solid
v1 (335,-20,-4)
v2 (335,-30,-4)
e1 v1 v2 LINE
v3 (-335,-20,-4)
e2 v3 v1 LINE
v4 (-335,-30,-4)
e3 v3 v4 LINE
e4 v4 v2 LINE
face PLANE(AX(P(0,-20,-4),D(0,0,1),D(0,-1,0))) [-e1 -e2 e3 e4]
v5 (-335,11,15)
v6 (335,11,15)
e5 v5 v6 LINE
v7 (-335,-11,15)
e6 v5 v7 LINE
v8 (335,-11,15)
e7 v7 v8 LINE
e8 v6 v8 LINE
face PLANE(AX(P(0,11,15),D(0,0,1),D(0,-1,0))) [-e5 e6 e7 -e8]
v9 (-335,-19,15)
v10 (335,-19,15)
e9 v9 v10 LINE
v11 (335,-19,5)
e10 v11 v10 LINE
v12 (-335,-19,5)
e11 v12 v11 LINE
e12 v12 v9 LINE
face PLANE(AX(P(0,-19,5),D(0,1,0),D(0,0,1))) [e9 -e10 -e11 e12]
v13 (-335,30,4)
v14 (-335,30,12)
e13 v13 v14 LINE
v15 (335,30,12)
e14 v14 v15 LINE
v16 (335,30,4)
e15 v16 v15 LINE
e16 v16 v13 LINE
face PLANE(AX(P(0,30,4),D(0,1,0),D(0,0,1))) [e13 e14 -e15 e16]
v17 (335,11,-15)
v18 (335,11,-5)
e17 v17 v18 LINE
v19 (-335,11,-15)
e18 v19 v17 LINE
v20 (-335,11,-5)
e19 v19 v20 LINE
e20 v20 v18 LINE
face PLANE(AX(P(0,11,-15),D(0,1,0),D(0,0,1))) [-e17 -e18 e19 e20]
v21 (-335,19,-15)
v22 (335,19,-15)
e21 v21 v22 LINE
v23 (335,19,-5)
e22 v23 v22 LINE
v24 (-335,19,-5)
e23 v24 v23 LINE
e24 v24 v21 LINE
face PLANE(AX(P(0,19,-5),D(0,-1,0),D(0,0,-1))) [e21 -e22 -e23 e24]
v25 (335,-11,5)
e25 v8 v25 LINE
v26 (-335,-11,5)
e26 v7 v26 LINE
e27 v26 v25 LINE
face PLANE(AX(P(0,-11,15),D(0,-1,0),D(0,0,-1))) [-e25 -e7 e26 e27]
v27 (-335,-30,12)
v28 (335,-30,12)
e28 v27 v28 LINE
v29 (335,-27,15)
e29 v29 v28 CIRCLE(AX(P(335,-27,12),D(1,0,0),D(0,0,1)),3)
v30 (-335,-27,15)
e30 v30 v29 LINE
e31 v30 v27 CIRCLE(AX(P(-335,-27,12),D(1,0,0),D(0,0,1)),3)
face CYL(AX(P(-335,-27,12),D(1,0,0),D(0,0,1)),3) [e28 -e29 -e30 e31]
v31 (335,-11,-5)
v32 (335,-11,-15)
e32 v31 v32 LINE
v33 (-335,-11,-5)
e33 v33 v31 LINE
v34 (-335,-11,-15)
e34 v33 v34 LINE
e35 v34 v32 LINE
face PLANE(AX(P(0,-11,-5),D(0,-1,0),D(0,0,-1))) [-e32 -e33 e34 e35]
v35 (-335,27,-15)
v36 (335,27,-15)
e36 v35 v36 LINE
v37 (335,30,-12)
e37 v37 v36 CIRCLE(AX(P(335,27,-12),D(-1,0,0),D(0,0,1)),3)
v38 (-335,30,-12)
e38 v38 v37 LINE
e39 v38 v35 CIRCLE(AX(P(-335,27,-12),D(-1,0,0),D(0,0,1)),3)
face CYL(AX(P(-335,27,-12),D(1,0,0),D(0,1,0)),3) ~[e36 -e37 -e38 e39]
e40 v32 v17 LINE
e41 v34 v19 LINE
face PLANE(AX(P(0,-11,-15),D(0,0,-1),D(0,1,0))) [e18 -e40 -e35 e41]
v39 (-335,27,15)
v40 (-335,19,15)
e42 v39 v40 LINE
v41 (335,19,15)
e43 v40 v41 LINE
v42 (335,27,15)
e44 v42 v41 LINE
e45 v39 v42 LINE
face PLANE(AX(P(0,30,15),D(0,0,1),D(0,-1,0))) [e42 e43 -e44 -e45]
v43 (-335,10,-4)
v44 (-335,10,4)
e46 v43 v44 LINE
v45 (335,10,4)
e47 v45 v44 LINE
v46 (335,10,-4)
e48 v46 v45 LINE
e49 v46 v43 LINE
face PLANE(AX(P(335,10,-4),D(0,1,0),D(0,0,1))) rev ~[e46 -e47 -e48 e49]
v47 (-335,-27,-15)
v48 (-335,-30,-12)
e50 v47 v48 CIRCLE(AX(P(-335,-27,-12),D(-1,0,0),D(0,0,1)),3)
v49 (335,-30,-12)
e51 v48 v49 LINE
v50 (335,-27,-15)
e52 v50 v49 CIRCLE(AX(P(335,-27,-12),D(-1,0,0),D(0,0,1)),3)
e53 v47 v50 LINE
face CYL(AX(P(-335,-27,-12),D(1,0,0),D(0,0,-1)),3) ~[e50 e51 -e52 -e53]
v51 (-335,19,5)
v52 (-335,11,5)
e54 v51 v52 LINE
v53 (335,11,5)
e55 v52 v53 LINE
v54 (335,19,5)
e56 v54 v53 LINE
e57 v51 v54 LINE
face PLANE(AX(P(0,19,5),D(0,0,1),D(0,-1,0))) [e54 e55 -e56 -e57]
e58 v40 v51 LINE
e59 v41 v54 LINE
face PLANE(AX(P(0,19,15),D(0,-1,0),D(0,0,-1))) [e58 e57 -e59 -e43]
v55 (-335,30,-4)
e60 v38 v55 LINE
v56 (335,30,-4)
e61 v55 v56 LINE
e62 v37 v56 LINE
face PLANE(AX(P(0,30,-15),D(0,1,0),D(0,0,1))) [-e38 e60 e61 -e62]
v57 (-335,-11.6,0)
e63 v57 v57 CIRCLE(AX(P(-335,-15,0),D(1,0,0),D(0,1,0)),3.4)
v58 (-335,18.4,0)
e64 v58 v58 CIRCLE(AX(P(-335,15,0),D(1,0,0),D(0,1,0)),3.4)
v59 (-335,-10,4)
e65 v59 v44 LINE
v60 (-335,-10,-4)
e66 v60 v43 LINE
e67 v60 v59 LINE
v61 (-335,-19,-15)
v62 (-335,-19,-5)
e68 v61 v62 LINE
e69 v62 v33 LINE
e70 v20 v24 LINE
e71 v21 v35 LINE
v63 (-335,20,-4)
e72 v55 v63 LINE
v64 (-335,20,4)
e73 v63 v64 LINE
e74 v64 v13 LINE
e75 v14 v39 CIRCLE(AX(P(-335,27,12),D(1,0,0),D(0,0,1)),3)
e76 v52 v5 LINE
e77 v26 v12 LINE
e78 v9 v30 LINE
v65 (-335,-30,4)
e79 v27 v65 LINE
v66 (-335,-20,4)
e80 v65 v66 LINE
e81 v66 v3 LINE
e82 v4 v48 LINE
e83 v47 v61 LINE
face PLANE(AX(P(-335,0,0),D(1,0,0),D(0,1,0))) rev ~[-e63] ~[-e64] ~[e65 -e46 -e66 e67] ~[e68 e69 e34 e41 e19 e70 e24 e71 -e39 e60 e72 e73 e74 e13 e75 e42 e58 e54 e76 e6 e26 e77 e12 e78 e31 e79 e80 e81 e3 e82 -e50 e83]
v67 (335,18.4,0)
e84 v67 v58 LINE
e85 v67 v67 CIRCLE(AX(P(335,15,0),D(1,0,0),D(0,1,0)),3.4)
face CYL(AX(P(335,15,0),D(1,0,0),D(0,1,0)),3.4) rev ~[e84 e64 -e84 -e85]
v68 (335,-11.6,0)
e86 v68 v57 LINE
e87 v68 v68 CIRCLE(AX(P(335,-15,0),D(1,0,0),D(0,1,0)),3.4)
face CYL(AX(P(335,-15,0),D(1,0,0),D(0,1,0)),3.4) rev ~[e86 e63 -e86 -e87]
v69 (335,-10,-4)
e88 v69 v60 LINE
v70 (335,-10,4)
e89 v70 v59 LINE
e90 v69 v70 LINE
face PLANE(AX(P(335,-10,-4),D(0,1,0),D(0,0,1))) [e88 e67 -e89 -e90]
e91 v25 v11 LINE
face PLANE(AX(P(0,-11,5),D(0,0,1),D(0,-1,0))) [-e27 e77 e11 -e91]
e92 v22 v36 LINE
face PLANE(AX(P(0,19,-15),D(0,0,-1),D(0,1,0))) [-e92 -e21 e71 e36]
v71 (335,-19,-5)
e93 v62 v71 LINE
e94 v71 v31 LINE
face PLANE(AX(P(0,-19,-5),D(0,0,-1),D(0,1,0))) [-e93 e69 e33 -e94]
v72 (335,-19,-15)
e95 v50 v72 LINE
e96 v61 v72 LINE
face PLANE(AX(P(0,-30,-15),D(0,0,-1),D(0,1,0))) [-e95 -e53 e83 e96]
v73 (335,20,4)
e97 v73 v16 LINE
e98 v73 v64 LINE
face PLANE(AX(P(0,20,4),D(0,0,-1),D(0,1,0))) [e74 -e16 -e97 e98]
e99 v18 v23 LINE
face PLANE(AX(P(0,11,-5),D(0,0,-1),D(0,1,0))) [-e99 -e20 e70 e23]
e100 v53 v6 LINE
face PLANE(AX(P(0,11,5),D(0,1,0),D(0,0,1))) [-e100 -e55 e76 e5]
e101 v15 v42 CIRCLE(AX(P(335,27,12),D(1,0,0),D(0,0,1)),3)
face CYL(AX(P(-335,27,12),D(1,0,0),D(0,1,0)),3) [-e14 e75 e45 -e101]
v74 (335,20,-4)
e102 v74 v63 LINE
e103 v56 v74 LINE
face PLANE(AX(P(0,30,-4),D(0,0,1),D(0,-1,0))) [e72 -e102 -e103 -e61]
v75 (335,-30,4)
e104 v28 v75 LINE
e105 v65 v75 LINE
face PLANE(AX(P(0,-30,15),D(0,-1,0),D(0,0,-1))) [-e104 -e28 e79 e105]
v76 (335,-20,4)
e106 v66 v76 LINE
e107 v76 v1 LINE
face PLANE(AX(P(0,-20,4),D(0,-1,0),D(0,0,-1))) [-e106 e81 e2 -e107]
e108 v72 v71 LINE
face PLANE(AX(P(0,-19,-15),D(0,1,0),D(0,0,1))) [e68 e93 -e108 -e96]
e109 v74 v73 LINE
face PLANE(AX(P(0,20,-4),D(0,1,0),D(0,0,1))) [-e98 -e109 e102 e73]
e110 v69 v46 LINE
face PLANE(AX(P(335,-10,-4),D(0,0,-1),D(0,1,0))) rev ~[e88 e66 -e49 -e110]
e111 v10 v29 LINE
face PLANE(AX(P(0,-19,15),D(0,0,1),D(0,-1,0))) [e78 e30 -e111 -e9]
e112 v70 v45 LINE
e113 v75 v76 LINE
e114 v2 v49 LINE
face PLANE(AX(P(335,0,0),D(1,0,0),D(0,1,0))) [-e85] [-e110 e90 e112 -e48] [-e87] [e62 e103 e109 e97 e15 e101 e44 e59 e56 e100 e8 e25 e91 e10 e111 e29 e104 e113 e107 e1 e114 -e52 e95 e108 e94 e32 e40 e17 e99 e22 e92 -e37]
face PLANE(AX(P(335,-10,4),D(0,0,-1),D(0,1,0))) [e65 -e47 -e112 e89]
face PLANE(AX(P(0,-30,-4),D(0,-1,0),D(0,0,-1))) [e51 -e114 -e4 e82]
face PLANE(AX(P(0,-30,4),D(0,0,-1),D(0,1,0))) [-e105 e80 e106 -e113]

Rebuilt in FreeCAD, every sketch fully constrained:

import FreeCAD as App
import Part
import Sketcher
from FreeCAD import Vector
Q = App.Units.Quantity


def edges_at(feature, points):
    """Names of the edges that pass closest to the given points."""
    edges = feature.Shape.Edges
    near = lambda p: min(range(len(edges)), key=lambda i: edges[i].distToShape(Part.Vertex(*p))[0])
    return sorted({f"Edge{near(p) + 1}" for p in points})

doc = App.newDocument("Part")
params = doc.addObject("Spreadsheet::Sheet", "Params")
for row, (alias, value) in enumerate([
    ("sketch1_width", "11 mm"),
    ("sketch1_width2", "8 mm"),
    ("sketch1_width3", "22 mm"),
    ("sketch1_width4", "10 mm"),
    ("pad1_length", "670 mm"),
    ("sketch2_diameter", "6.8 mm"),
    ("sketch2_width", "20 mm"),
    ("sketch2_height", "8 mm"),
    ("pocket1_length", "670 mm"),
    ("fillet_radius", "3 mm"),
], start=1):
    params.set(f"A{row}", alias)
    params.set(f"B{row}", "=" + value)
    params.setAlias(f"B{row}", alias)

body = doc.addObject("PartDesign::Body", "Body")

# Sketch on YZ plane
sketch1 = body.newObject("Sketcher::SketchObject", "Sketch")
sketch1.AttachmentSupport = (doc.getObject("YZ_Plane"), [""])
sketch1.MapMode = "FlatFace"
sketch1.addGeometry([
    Part.LineSegment(Vector(30, 4, 0), Vector(30, 15, 0)),  # 0
    Part.LineSegment(Vector(30, 15, 0), Vector(19, 15, 0)),  # 1
    Part.LineSegment(Vector(19, 15, 0), Vector(19, 5, 0)),  # 2
    Part.LineSegment(Vector(19, 5, 0), Vector(11, 5, 0)),  # 3
    Part.LineSegment(Vector(11, 5, 0), Vector(11, 15, 0)),  # 4
    Part.LineSegment(Vector(11, 15, 0), Vector(-11, 15, 0)),  # 5
    Part.LineSegment(Vector(-11, 15, 0), Vector(-11, 5, 0)),  # 6
    Part.LineSegment(Vector(-11, 5, 0), Vector(-19, 5, 0)),  # 7
    Part.LineSegment(Vector(-19, 5, 0), Vector(-19, 15, 0)),  # 8
    Part.LineSegment(Vector(-19, 15, 0), Vector(-30, 15, 0)),  # 9
    Part.LineSegment(Vector(-30, 15, 0), Vector(-30, 4, 0)),  # 10
    Part.LineSegment(Vector(-30, 4, 0), Vector(-20, 4, 0)),  # 11
    Part.LineSegment(Vector(-20, 4, 0), Vector(-20, -4, 0)),  # 12
    Part.LineSegment(Vector(-20, -4, 0), Vector(-30, -4, 0)),  # 13
    Part.LineSegment(Vector(-30, -4, 0), Vector(-30, -15, 0)),  # 14
    Part.LineSegment(Vector(-30, -15, 0), Vector(-19, -15, 0)),  # 15
    Part.LineSegment(Vector(-19, -15, 0), Vector(-19, -5, 0)),  # 16
    Part.LineSegment(Vector(-19, -5, 0), Vector(-11, -5, 0)),  # 17
    Part.LineSegment(Vector(-11, -5, 0), Vector(-11, -15, 0)),  # 18
    Part.LineSegment(Vector(-11, -15, 0), Vector(11, -15, 0)),  # 19
    Part.LineSegment(Vector(11, -15, 0), Vector(11, -5, 0)),  # 20
    Part.LineSegment(Vector(11, -5, 0), Vector(19, -5, 0)),  # 21
    Part.LineSegment(Vector(19, -5, 0), Vector(19, -15, 0)),  # 22
    Part.LineSegment(Vector(19, -15, 0), Vector(30, -15, 0)),  # 23
    Part.LineSegment(Vector(30, -15, 0), Vector(30, -4, 0)),  # 24
    Part.LineSegment(Vector(30, -4, 0), Vector(20, -4, 0)),  # 25
    Part.LineSegment(Vector(20, -4, 0), Vector(20, 4, 0)),  # 26
    Part.LineSegment(Vector(20, 4, 0), Vector(30, 4, 0)),  # 27
], False)
sketch1.addConstraint([
    Sketcher.Constraint("Coincident", 0, 2, 1, 1),
    Sketcher.Constraint("Coincident", 1, 2, 2, 1),
    Sketcher.Constraint("Coincident", 2, 2, 3, 1),
    Sketcher.Constraint("Coincident", 3, 2, 4, 1),
    Sketcher.Constraint("Coincident", 4, 2, 5, 1),
    Sketcher.Constraint("Coincident", 5, 2, 6, 1),
    Sketcher.Constraint("Coincident", 6, 2, 7, 1),
    Sketcher.Constraint("Coincident", 7, 2, 8, 1),
    Sketcher.Constraint("Coincident", 8, 2, 9, 1),
    Sketcher.Constraint("Coincident", 9, 2, 10, 1),
    Sketcher.Constraint("Coincident", 10, 2, 11, 1),
    Sketcher.Constraint("Coincident", 11, 2, 12, 1),
    Sketcher.Constraint("Coincident", 12, 2, 13, 1),
    Sketcher.Constraint("Coincident", 13, 2, 14, 1),
    Sketcher.Constraint("Coincident", 14, 2, 15, 1),
    Sketcher.Constraint("Coincident", 15, 2, 16, 1),
    Sketcher.Constraint("Coincident", 16, 2, 17, 1),
    Sketcher.Constraint("Coincident", 17, 2, 18, 1),
    Sketcher.Constraint("Coincident", 18, 2, 19, 1),
    Sketcher.Constraint("Coincident", 19, 2, 20, 1),
    Sketcher.Constraint("Coincident", 20, 2, 21, 1),
    Sketcher.Constraint("Coincident", 21, 2, 22, 1),
    Sketcher.Constraint("Coincident", 22, 2, 23, 1),
    Sketcher.Constraint("Coincident", 23, 2, 24, 1),
    Sketcher.Constraint("Coincident", 24, 2, 25, 1),
    Sketcher.Constraint("Coincident", 25, 2, 26, 1),
    Sketcher.Constraint("Coincident", 26, 2, 27, 1),
    Sketcher.Constraint("Coincident", 27, 2, 0, 1),
    Sketcher.Constraint("Vertical", 0),
    Sketcher.Constraint("Horizontal", 1),
    Sketcher.Constraint("Vertical", 2),
    Sketcher.Constraint("Horizontal", 3),
    Sketcher.Constraint("Vertical", 4),
    Sketcher.Constraint("Horizontal", 5),
    Sketcher.Constraint("Vertical", 6),
    Sketcher.Constraint("Horizontal", 7),
    Sketcher.Constraint("Vertical", 8),
    Sketcher.Constraint("Horizontal", 9),
    Sketcher.Constraint("Vertical", 10),
    Sketcher.Constraint("Horizontal", 11),
    Sketcher.Constraint("Vertical", 12),
    Sketcher.Constraint("Horizontal", 13),
    Sketcher.Constraint("Vertical", 14),
    Sketcher.Constraint("Horizontal", 15),
    Sketcher.Constraint("Vertical", 16),
    Sketcher.Constraint("Horizontal", 17),
    Sketcher.Constraint("Vertical", 18),
    Sketcher.Constraint("Horizontal", 19),
    Sketcher.Constraint("Vertical", 20),
    Sketcher.Constraint("Horizontal", 21),
    Sketcher.Constraint("Vertical", 22),
    Sketcher.Constraint("Horizontal", 23),
    Sketcher.Constraint("Vertical", 24),
    Sketcher.Constraint("Horizontal", 25),
    Sketcher.Constraint("Vertical", 26),
    Sketcher.Constraint("Horizontal", 27),
    Sketcher.Constraint("Symmetric", 0, 2, 14, 2, -1, 1),
    Sketcher.Constraint("Symmetric", 2, 2, 16, 2, -1, 1),
    Sketcher.Constraint("Symmetric", 4, 2, 18, 2, -1, 1),
    Sketcher.Constraint("Symmetric", 6, 2, 20, 2, -1, 1),
    Sketcher.Constraint("Symmetric", 8, 2, 22, 2, -1, 1),
    Sketcher.Constraint("Symmetric", 10, 2, 24, 2, -1, 1),
    Sketcher.Constraint("Symmetric", 12, 2, 26, 2, -1, 1),
    Sketcher.Constraint("Symmetric", 3, 2, 6, 2, -2),
    Sketcher.Constraint("Symmetric", 1, 2, 8, 2, -2),
    Sketcher.Constraint("Symmetric", 13, 2, 24, 2, -2),
    Sketcher.Constraint("Horizontal", 1, 2, 4, 2),
    Sketcher.Constraint("Equal", 23, 0),
    Sketcher.Constraint("Equal", 27, 2),
    Sketcher.Constraint("Equal", 21, 12),
    Sketcher.Constraint("DistanceX", 1, 2, 1, 1, Q("11 mm")),
    Sketcher.Constraint("DistanceX", 3, 2, 3, 1, Q("8 mm")),
    Sketcher.Constraint("DistanceX", 5, 2, 5, 1, Q("22 mm")),
    Sketcher.Constraint("DistanceX", 11, 1, 11, 2, Q("10 mm")),
])
sketch1.setExpression("Constraints[70]", "Params.sketch1_width")
sketch1.setExpression("Constraints[71]", "Params.sketch1_width2")
sketch1.setExpression("Constraints[72]", "Params.sketch1_width3")
sketch1.setExpression("Constraints[73]", "Params.sketch1_width4")
pad1 = body.newObject("PartDesign::Pad", "Pad")
pad1.Profile = sketch1
pad1.setExpression("Length", "Params.pad1_length")
pad1.Midplane = True

# Sketch on YZ plane
sketch2 = body.newObject("Sketcher::SketchObject", "Sketch001")
sketch2.AttachmentSupport = (doc.getObject("YZ_Plane"), [""])
sketch2.MapMode = "FlatFace"
sketch2.AttachmentOffset = App.Placement(Vector(0, 0, 335), App.Rotation())
sketch2.addGeometry([
    Part.LineSegment(Vector(-10, 4, 0), Vector(-10, -4, 0)),  # 0
    Part.LineSegment(Vector(-10, -4, 0), Vector(10, -4, 0)),  # 1
    Part.LineSegment(Vector(10, -4, 0), Vector(10, 4, 0)),  # 2
    Part.LineSegment(Vector(10, 4, 0), Vector(-10, 4, 0)),  # 3
    Part.Circle(Vector(-15, 0, 0), Vector(0, 0, 1), 3.4),  # 4
    Part.Circle(Vector(15, 0, 0), Vector(0, 0, 1), 3.4),  # 5
], False)
sketch2.addConstraint([
    Sketcher.Constraint("Coincident", 0, 2, 1, 1),
    Sketcher.Constraint("Coincident", 1, 2, 2, 1),
    Sketcher.Constraint("Coincident", 2, 2, 3, 1),
    Sketcher.Constraint("Coincident", 3, 2, 0, 1),
    Sketcher.Constraint("Vertical", 0),
    Sketcher.Constraint("Horizontal", 1),
    Sketcher.Constraint("Vertical", 2),
    Sketcher.Constraint("Horizontal", 3),
    Sketcher.Constraint("Equal", 4, 5),
    Sketcher.Constraint("Symmetric", 4, 3, 5, 3, -1, 1),
    Sketcher.Constraint("Symmetric", 0, 2, 2, 2, -1, 1),
    Sketcher.Constraint("PointOnObject", 4, 3, -1),
    Sketcher.Constraint("Diameter", 4, Q("6.8 mm")),
    Sketcher.Constraint("DistanceX", 1, 1, 1, 2, Q("20 mm")),
    Sketcher.Constraint("DistanceY", 0, 2, 0, 1, Q("8 mm")),
    Sketcher.Constraint("DistanceX", 4, 3, -1, 1, Q("15 mm")),
])
sketch2.setExpression("Constraints[12]", "Params.sketch2_diameter")
sketch2.setExpression("Constraints[13]", "Params.sketch2_width")
sketch2.setExpression("Constraints[14]", "Params.sketch2_height")
pocket1 = body.newObject("PartDesign::Pocket", "Pocket")
pocket1.Profile = sketch2
pocket1.setExpression("Length", "Params.pocket1_length")
doc.recompute()

fillet = body.newObject("PartDesign::Fillet", "Fillet")
fillet.Base = (pocket1, edges_at(pocket1, [
    (0, -30, 15),
    (0, -30, -15),
    (0, 30, 15),
    (0, 30, -15),
]))
fillet.setExpression("Radius", "Params.fillet_radius")

doc.recompute()
